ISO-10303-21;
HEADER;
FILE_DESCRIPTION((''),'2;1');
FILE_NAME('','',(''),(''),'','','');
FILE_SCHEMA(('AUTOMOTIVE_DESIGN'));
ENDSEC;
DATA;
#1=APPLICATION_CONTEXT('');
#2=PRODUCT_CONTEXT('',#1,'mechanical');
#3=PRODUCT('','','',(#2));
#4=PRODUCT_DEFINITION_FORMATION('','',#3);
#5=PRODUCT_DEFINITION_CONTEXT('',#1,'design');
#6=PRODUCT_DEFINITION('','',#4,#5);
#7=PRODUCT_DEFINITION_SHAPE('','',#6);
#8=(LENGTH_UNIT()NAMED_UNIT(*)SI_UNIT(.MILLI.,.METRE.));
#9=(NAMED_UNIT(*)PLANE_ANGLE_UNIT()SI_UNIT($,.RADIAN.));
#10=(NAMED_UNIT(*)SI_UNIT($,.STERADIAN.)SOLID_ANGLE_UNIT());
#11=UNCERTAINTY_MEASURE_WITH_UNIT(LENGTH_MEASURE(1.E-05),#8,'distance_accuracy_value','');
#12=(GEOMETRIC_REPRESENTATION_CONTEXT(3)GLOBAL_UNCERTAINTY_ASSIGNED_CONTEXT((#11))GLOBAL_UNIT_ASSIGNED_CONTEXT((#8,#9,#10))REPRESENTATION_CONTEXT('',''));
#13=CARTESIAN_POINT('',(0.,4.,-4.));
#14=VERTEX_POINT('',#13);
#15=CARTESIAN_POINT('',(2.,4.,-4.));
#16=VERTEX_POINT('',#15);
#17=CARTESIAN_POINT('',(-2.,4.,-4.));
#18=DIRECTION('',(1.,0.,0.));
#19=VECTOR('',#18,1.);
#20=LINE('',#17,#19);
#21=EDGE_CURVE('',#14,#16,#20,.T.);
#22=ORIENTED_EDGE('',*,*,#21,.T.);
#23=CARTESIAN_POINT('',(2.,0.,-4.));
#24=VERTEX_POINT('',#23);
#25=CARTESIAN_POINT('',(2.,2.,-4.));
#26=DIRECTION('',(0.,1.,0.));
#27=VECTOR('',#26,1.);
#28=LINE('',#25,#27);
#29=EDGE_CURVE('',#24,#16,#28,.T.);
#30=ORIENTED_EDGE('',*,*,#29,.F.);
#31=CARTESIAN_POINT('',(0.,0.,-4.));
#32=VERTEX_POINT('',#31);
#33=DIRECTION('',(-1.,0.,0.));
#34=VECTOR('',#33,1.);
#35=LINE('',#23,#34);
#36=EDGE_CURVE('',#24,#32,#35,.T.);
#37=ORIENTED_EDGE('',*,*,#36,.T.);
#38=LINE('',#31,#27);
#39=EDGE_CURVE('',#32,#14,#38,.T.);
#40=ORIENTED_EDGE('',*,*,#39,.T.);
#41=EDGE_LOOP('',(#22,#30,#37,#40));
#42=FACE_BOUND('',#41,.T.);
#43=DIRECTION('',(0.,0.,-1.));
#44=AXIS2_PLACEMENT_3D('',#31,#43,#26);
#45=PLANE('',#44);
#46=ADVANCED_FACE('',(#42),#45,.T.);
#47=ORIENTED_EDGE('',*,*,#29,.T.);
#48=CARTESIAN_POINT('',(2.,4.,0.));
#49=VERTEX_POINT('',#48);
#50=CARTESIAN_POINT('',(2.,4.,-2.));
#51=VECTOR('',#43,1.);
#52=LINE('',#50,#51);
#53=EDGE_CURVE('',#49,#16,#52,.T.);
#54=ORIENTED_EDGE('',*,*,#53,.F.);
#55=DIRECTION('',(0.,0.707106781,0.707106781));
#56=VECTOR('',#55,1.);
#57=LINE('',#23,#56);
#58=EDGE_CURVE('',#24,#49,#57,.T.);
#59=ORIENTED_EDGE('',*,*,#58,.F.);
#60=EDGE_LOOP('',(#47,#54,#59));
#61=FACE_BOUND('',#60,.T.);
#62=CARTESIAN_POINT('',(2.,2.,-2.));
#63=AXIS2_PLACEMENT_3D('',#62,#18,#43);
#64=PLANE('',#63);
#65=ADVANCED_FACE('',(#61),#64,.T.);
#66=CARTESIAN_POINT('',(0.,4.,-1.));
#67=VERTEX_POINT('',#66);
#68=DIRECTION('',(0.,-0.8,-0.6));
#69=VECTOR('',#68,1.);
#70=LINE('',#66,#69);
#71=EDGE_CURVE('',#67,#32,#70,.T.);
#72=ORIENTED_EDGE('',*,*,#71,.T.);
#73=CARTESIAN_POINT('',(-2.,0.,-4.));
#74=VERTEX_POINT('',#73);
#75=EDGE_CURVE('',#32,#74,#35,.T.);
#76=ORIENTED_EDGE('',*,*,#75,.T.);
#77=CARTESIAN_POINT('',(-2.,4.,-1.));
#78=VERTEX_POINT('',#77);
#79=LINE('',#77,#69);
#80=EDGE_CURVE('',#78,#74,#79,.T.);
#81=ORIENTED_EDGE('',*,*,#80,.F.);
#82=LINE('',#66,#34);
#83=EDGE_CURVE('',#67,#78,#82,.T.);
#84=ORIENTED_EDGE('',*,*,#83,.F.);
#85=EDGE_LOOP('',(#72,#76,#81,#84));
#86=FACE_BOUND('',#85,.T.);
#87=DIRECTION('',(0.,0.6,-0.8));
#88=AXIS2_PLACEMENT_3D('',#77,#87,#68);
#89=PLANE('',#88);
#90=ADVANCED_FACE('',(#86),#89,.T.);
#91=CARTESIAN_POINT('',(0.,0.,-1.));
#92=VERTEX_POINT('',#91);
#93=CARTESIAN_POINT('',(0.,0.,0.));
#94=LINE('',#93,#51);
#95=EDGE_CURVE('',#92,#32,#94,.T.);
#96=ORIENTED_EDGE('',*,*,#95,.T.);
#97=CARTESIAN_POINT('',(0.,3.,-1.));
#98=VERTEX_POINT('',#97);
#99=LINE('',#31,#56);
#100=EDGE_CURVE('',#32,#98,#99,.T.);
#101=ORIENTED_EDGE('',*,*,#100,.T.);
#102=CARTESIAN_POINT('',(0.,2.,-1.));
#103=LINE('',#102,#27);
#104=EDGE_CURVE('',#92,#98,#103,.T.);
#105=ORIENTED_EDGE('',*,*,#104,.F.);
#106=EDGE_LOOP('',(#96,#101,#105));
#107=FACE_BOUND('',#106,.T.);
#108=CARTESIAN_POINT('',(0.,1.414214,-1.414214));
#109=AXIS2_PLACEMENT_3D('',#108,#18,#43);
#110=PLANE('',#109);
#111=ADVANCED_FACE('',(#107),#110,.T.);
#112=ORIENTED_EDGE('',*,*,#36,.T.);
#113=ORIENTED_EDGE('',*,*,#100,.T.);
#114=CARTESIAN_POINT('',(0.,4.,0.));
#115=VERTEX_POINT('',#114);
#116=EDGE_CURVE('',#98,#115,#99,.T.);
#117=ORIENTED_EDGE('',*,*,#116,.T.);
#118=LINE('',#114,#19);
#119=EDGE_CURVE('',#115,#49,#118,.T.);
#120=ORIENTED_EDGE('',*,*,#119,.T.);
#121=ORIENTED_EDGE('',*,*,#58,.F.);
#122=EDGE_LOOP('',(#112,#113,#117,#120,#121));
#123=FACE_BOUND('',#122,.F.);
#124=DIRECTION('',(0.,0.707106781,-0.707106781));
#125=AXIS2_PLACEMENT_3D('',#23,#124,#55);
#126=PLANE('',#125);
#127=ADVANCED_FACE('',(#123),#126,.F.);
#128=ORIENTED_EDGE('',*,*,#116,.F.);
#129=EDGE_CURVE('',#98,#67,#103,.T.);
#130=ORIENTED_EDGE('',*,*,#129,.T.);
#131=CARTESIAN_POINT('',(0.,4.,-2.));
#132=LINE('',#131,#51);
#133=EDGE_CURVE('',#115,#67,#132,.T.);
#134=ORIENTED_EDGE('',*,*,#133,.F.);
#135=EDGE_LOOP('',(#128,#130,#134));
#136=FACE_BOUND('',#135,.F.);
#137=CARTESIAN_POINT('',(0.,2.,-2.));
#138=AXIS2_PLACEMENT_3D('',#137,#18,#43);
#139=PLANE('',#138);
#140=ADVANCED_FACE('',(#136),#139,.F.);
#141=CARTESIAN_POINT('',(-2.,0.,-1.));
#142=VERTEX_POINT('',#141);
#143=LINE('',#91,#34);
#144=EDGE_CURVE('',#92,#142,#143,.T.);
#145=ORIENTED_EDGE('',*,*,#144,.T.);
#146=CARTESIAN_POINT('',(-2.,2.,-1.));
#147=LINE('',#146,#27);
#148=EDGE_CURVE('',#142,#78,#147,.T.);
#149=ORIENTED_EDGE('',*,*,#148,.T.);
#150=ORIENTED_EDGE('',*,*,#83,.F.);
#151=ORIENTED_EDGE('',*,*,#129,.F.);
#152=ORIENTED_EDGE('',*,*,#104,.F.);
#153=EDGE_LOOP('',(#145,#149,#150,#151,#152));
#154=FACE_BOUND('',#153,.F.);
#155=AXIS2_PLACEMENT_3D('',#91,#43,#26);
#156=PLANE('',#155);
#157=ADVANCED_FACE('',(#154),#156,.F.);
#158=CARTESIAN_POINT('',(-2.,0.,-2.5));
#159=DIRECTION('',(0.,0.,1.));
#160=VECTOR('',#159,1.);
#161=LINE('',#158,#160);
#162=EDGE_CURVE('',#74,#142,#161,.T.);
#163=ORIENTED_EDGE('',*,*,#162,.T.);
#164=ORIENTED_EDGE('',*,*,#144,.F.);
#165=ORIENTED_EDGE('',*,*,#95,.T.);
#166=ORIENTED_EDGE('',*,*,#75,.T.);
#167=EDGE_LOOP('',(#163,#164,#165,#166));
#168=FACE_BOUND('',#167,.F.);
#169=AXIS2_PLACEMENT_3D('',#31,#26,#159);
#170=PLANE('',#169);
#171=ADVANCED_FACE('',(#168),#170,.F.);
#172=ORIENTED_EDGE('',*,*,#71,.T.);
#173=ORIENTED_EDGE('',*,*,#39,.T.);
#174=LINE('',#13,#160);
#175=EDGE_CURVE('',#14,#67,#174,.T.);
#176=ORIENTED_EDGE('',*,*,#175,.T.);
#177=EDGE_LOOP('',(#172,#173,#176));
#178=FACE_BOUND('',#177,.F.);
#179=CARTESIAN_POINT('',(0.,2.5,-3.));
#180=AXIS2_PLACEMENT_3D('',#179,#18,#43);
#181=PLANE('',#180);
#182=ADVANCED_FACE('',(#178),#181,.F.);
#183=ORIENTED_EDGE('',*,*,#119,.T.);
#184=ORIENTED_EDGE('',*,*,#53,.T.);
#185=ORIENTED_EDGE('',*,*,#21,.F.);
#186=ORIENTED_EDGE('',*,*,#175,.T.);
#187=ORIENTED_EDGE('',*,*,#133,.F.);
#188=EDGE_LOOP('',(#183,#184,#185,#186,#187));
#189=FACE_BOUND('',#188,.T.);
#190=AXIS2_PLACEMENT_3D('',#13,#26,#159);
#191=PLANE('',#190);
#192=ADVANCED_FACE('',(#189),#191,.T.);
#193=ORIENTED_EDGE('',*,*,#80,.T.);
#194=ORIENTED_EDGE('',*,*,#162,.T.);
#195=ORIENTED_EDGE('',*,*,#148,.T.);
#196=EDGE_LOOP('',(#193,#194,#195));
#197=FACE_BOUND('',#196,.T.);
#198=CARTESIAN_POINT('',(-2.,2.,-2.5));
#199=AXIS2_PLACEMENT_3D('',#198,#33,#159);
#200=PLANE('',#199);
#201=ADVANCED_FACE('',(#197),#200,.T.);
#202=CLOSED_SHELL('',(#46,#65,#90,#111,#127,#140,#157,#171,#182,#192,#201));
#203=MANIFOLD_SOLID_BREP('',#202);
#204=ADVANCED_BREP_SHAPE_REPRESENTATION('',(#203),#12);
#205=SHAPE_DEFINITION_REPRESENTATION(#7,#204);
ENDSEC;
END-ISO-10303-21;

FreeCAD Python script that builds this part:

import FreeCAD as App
import Part
import Sketcher
from FreeCAD import Vector
Q = App.Units.Quantity

doc = App.newDocument("Part")
body = doc.addObject("PartDesign::Body", "Body")

# Sketch on YZ plane
sketch1 = body.newObject("Sketcher::SketchObject", "Sketch")
sketch1.AttachmentSupport = (doc.getObject("YZ_Plane"), [""])
sketch1.MapMode = "FlatFace"
sketch1.addGeometry([
    Part.LineSegment(Vector(4, 0, 0), Vector(0, 0, 0)),
    Part.LineSegment(Vector(0, 0, 0), Vector(0, -4, 0)),
    Part.LineSegment(Vector(0, -4, 0), Vector(4, -4, 0)),
    Part.LineSegment(Vector(4, -4, 0), Vector(4, 0, 0)),
], False)
sketch1.addConstraint([
    Sketcher.Constraint("Coincident", 0, 2, 1, 1),
    Sketcher.Constraint("Coincident", 1, 2, 2, 1),
    Sketcher.Constraint("Coincident", 2, 2, 3, 1),
    Sketcher.Constraint("Coincident", 3, 2, 0, 1),
    Sketcher.Constraint("Horizontal", 0),
    Sketcher.Constraint("Vertical", 1),
    Sketcher.Constraint("Horizontal", 2),
    Sketcher.Constraint("Vertical", 3),
    Sketcher.Constraint("Coincident", 0, 2, -1, 1),
    Sketcher.Constraint("Equal", 2, 1),
    Sketcher.Constraint("DistanceX", 0, 2, 0, 1, Q("4 mm")),
])
pad1 = body.newObject("PartDesign::Pad", "Pad")
pad1.Profile = sketch1
pad1.Length = 2

# Sketch on YZ plane
sketch2 = body.newObject("Sketcher::SketchObject", "Sketch001")
sketch2.AttachmentSupport = (doc.getObject("YZ_Plane"), [""])
sketch2.MapMode = "FlatFace"
sketch2.addGeometry([
    Part.LineSegment(Vector(4, -4, 0), Vector(0, -4, 0)),
    Part.LineSegment(Vector(0, -4, 0), Vector(0, -1, 0)),
    Part.LineSegment(Vector(0, -1, 0), Vector(4, -1, 0)),
    Part.LineSegment(Vector(4, -1, 0), Vector(4, -4, 0)),
], False)
sketch2.addConstraint([
    Sketcher.Constraint("Coincident", 0, 2, 1, 1),
    Sketcher.Constraint("Coincident", 1, 2, 2, 1),
    Sketcher.Constraint("Coincident", 2, 2, 3, 1),
    Sketcher.Constraint("Coincident", 3, 2, 0, 1),
    Sketcher.Constraint("Horizontal", 0),
    Sketcher.Constraint("Vertical", 1),
    Sketcher.Constraint("Horizontal", 2),
    Sketcher.Constraint("Vertical", 3),
    Sketcher.Constraint("PointOnObject", 0, 2, -2),
    Sketcher.Constraint("DistanceX", 0, 2, 0, 1, Q("4 mm")),
    Sketcher.Constraint("DistanceY", 1, 1, 1, 2, Q("3 mm")),
    Sketcher.Constraint("DistanceY", 0, 2, -1, 1, Q("4 mm")),
])
pad2 = body.newObject("PartDesign::Pad", "Pad001")
pad2.Profile = sketch2
pad2.Length = 2
pad2.Reversed = True

# Sketch on YZ plane
sketch3 = body.newObject("Sketcher::SketchObject", "Sketch002")
sketch3.AttachmentSupport = (doc.getObject("YZ_Plane"), [""])
sketch3.MapMode = "FlatFace"
sketch3.AttachmentOffset = App.Placement(Vector(0, 0, -2), App.Rotation())
sketch3.addGeometry([
    Part.LineSegment(Vector(0, -4, 0), Vector(4, -1, 0)),
    Part.LineSegment(Vector(4, -1, 0), Vector(4, -4, 0)),
    Part.LineSegment(Vector(4, -4, 0), Vector(0, -4, 0)),
], False)
sketch3.addConstraint([
    Sketcher.Constraint("Coincident", 0, 2, 1, 1),
    Sketcher.Constraint("Coincident", 1, 2, 2, 1),
    Sketcher.Constraint("Coincident", 2, 2, 0, 1),
    Sketcher.Constraint("Vertical", 1),
    Sketcher.Constraint("Horizontal", 2),
    Sketcher.Constraint("PointOnObject", 2, 2, -2),
    Sketcher.Constraint("DistanceX", 2, 2, 2, 1, Q("4 mm")),
    Sketcher.Constraint("DistanceY", 1, 2, 1, 1, Q("3 mm")),
    Sketcher.Constraint("DistanceY", 0, 2, -1, 1, Q("1 mm")),
])
pocket1 = body.newObject("PartDesign::Pocket", "Pocket")
pocket1.Profile = sketch3
pocket1.Length = 2
pocket1.Reversed = True

# Sketch on YZ plane
sketch4 = body.newObject("Sketcher::SketchObject", "Sketch003")
sketch4.AttachmentSupport = (doc.getObject("YZ_Plane"), [""])
sketch4.MapMode = "FlatFace"
sketch4.AttachmentOffset = App.Placement(Vector(0, 0, 2), App.Rotation())
sketch4.addGeometry([
    Part.LineSegment(Vector(0, -4, 0), Vector(4, 0, 0)),
    Part.LineSegment(Vector(4, 0, 0), Vector(0, 0, 0)),
    Part.LineSegment(Vector(0, 0, 0), Vector(0, -4, 0)),
], False)
sketch4.addConstraint([
    Sketcher.Constraint("Coincident", 0, 2, 1, 1),
    Sketcher.Constraint("Coincident", 1, 2, 2, 1),
    Sketcher.Constraint("Coincident", 2, 2, 0, 1),
    Sketcher.Constraint("Horizontal", 1),
    Sketcher.Constraint("Vertical", 2),
    Sketcher.Constraint("Coincident", 1, 2, -1, 1),
    Sketcher.Constraint("Equal", 1, 2),
    Sketcher.Constraint("DistanceX", 1, 2, 1, 1, Q("4 mm")),
])
pocket2 = body.newObject("PartDesign::Pocket", "Pocket001")
pocket2.Profile = sketch4
pocket2.Length = 2

doc.recompute()
